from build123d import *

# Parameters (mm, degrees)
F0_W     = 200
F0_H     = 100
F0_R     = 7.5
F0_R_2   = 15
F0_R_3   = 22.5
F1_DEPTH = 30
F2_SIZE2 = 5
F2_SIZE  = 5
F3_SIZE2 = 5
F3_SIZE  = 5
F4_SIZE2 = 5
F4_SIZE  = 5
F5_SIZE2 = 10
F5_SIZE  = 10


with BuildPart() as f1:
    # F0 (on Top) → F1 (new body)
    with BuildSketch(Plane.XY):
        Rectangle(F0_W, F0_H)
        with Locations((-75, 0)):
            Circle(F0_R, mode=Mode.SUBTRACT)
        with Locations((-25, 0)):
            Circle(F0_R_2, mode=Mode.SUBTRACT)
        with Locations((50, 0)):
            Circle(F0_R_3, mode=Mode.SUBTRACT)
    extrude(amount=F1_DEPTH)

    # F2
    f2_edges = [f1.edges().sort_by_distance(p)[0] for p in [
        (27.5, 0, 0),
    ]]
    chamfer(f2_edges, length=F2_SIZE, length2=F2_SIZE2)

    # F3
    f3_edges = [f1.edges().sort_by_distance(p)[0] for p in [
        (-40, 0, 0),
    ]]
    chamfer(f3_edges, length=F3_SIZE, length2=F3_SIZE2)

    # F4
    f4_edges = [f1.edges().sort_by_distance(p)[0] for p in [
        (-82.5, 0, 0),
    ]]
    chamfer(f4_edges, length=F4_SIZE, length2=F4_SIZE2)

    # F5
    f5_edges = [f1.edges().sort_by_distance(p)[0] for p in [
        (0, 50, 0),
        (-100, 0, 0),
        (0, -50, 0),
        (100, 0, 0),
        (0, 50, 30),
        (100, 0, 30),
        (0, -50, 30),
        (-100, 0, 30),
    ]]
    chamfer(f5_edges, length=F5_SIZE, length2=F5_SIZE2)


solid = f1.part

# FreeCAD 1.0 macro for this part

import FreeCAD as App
import Part
import Sketcher

V = App.Vector
Q = App.Units.Quantity


def edges_at(feature, points):
    """Names of the edges that pass closest to the given points."""
    edges = feature.Shape.Edges
    near = lambda p: min(range(len(edges)), key=lambda i: edges[i].distToShape(Part.Vertex(*p))[0])
    return sorted({f"Edge{near(p) + 1}" for p in points})

doc = App.newDocument("Part")
body = doc.addObject("PartDesign::Body", "Body")

sketch1 = body.newObject("Sketcher::SketchObject", "Sketch")
sketch1.AttachmentSupport = (doc.getObject("XY_Plane"), [""])
sketch1.MapMode = "FlatFace"
sketch1.addGeometry(Part.LineSegment(V(-100, 50, 0), V(-100, -50, 0)), False)
sketch1.addGeometry(Part.LineSegment(V(-100, -50, 0), V(100, -50, 0)), False)
sketch1.addGeometry(Part.LineSegment(V(100, -50, 0), V(100, 50, 0)), False)
sketch1.addGeometry(Part.LineSegment(V(100, 50, 0), V(-100, 50, 0)), False)
sketch1.addGeometry(Part.Circle(V(-75, 0, 0), V(0, 0, 1), 7.5), False)
sketch1.addGeometry(Part.Circle(V(-25, 0, 0), V(0, 0, 1), 15), False)
sketch1.addGeometry(Part.Circle(V(50, 0, 0), V(0, 0, 1), 22.5), False)
sketch1.addConstraint(Sketcher.Constraint("Coincident", 0, 2, 1, 1))
sketch1.addConstraint(Sketcher.Constraint("Coincident", 1, 2, 2, 1))
sketch1.addConstraint(Sketcher.Constraint("Coincident", 2, 2, 3, 1))
sketch1.addConstraint(Sketcher.Constraint("Coincident", 3, 2, 0, 1))
sketch1.addConstraint(Sketcher.Constraint("Vertical", 0))
sketch1.addConstraint(Sketcher.Constraint("Horizontal", 1))
sketch1.addConstraint(Sketcher.Constraint("Vertical", 2))
sketch1.addConstraint(Sketcher.Constraint("Horizontal", 3))
sketch1.addConstraint(Sketcher.Constraint("Symmetric", 0, 2, 2, 2, -1, 1))
sketch1.addConstraint(Sketcher.Constraint("PointOnObject", 4, 3, -1))
sketch1.addConstraint(Sketcher.Constraint("PointOnObject", 5, 3, -1))
sketch1.addConstraint(Sketcher.Constraint("PointOnObject", 6, 3, -1))
sketch1.addConstraint(Sketcher.Constraint("Diameter", 4, Q("15 mm")))
sketch1.addConstraint(Sketcher.Constraint("Diameter", 5, Q("30 mm")))
sketch1.addConstraint(Sketcher.Constraint("Diameter", 6, Q("45 mm")))
sketch1.addConstraint(Sketcher.Constraint("DistanceX", 1, 1, 1, 2, Q("200 mm")))
sketch1.addConstraint(Sketcher.Constraint("DistanceY", 0, 2, 0, 1, Q("100 mm")))
sketch1.addConstraint(Sketcher.Constraint("DistanceX", 4, 3, -1, 1, Q("75 mm")))
sketch1.addConstraint(Sketcher.Constraint("DistanceX", 5, 3, -1, 1, Q("25 mm")))
sketch1.addConstraint(Sketcher.Constraint("DistanceX", -1, 1, 6, 3, Q("50 mm")))
pad1 = body.newObject("PartDesign::Pad", "Pad")
pad1.Profile = sketch1
pad1.Length = 30
doc.recompute()

chamfer = body.newObject("PartDesign::Chamfer", "Chamfer")
chamfer.Base = (pad1, edges_at(pad1, [(27.5, 0, 0)]))
chamfer.ChamferType = "Two distances"
chamfer.Size = 5
chamfer.Size2 = 5
doc.recompute()

chamfer2 = body.newObject("PartDesign::Chamfer", "Chamfer001")
chamfer2.Base = (chamfer, edges_at(chamfer, [(-40, 0, 0)]))
chamfer2.ChamferType = "Two distances"
chamfer2.Size = 5
chamfer2.Size2 = 5
doc.recompute()

chamfer3 = body.newObject("PartDesign::Chamfer", "Chamfer002")
chamfer3.Base = (chamfer2, edges_at(chamfer2, [(-82.5, 0, 0)]))
chamfer3.ChamferType = "Two distances"
chamfer3.Size = 5
chamfer3.Size2 = 5
doc.recompute()

chamfer4 = body.newObject("PartDesign::Chamfer", "Chamfer003")
chamfer4.Base = (chamfer3, edges_at(chamfer3, [
    (0, 50, 0),
    (-100, 0, 0),
    (0, -50, 0),
    (100, 0, 0),
    (0, 50, 30),
    (100, 0, 30),
    (0, -50, 30),
    (-100, 0, 30),
]))
chamfer4.ChamferType = "Two distances"
chamfer4.Size = 10
chamfer4.Size2 = 10

doc.recompute()
